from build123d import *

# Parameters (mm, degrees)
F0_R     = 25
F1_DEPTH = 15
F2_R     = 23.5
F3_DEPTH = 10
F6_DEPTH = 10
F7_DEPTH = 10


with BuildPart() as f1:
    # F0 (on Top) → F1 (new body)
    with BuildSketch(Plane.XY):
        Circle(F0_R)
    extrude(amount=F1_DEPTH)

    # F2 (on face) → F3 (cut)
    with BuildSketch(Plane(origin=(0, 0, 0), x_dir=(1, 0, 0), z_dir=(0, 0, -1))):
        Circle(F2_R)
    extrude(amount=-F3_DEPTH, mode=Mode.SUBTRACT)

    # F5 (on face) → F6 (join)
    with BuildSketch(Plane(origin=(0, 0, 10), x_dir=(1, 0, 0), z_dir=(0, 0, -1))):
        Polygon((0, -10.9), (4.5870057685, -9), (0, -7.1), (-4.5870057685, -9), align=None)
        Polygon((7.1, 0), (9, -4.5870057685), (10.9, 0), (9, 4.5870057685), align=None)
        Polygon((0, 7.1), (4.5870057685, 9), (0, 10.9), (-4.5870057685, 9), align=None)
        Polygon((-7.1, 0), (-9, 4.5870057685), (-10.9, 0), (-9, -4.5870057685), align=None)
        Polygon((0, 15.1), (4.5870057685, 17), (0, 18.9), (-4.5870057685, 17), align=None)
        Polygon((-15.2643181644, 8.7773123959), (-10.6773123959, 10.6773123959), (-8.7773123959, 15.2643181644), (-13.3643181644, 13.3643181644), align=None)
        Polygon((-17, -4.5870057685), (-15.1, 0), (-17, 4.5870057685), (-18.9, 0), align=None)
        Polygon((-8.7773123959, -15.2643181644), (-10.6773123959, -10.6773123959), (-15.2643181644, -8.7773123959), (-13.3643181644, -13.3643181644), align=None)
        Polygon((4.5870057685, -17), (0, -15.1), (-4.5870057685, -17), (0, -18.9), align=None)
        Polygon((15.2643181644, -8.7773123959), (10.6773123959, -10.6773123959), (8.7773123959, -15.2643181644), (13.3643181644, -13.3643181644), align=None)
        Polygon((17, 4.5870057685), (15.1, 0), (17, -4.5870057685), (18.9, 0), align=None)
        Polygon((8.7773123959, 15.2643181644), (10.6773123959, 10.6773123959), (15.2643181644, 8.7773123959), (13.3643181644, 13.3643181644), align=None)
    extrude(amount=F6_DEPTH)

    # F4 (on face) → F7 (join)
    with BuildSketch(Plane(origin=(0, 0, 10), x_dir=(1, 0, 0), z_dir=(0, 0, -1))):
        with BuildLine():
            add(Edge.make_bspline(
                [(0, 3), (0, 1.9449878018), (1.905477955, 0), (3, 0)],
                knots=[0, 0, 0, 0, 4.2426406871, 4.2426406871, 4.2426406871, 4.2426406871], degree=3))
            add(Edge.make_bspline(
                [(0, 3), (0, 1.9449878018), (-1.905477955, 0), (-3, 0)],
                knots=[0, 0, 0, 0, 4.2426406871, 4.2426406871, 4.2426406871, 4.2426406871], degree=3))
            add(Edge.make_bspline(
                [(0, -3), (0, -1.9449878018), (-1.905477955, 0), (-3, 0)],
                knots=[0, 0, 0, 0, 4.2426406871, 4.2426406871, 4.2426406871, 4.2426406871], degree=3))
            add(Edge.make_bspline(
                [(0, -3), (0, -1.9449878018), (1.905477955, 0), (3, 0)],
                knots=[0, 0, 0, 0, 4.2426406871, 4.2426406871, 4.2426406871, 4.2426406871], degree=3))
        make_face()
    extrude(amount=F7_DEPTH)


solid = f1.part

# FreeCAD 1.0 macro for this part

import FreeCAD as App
import Part
import Sketcher
from FreeCAD import Vector
Q = App.Units.Quantity

doc = App.newDocument("Part")
body = doc.addObject("PartDesign::Body", "Body")

# Sketch on XY plane
sketch1 = body.newObject("Sketcher::SketchObject", "Sketch")
sketch1.AttachmentSupport = (doc.getObject("XY_Plane"), [""])
sketch1.MapMode = "FlatFace"
sketch1.addGeometry(Part.Circle(Vector(0, 0, 0), Vector(0, 0, 1), 25), False)
sketch1.addConstraint(Sketcher.Constraint("Coincident", 0, 3, -1, 1))
sketch1.addConstraint(Sketcher.Constraint("Diameter", 0, 50.0))
pad1 = body.newObject("PartDesign::Pad", "Pad")
pad1.Profile = sketch1
pad1.Length = 15

# Sketch on XY plane
sketch2 = body.newObject("Sketcher::SketchObject", "Sketch001")
sketch2.AttachmentSupport = (doc.getObject("XY_Plane"), [""])
sketch2.MapMode = "FlatFace"
sketch2.addGeometry(Part.Circle(Vector(0, 0, 0), Vector(0, 0, 1), 23.5), False)
sketch2.addConstraint(Sketcher.Constraint("Coincident", 0, 3, -1, 1))
sketch2.addConstraint(Sketcher.Constraint("Diameter", 0, 47.0))
pocket1 = body.newObject("PartDesign::Pocket", "Pocket")
pocket1.Profile = sketch2
pocket1.Length = 10
pocket1.Reversed = True

# Sketch on XY plane
sketch3 = body.newObject("Sketcher::SketchObject", "Sketch002")
sketch3.AttachmentSupport = (doc.getObject("XY_Plane"), [""])
sketch3.MapMode = "FlatFace"
sketch3.AttachmentOffset = App.Placement(Vector(0, 0, 10), App.Rotation())
sketch3.addGeometry(Part.LineSegment(Vector(0, 10.9, 0), Vector(4.587006, 9, 0)), False)
sketch3.addGeometry(Part.LineSegment(Vector(4.587006, 9, 0), Vector(0, 7.1, 0)), False)
sketch3.addGeometry(Part.LineSegment(Vector(0, 7.1, 0), Vector(-4.587006, 9, 0)), False)
sketch3.addGeometry(Part.LineSegment(Vector(-4.587006, 9, 0), Vector(0, 10.9, 0)), False)
sketch3.addGeometry(Part.LineSegment(Vector(7.1, 0, 0), Vector(9, 4.587006, 0)), False)
sketch3.addGeometry(Part.LineSegment(Vector(9, 4.587006, 0), Vector(10.9, 0, 0)), False)
sketch3.addGeometry(Part.LineSegment(Vector(10.9, 0, 0), Vector(9, -4.587006, 0)), False)
sketch3.addGeometry(Part.LineSegment(Vector(9, -4.587006, 0), Vector(7.1, 0, 0)), False)
sketch3.addGeometry(Part.LineSegment(Vector(0, -7.1, 0), Vector(4.587006, -9, 0)), False)
sketch3.addGeometry(Part.LineSegment(Vector(4.587006, -9, 0), Vector(0, -10.9, 0)), False)
sketch3.addGeometry(Part.LineSegment(Vector(0, -10.9, 0), Vector(-4.587006, -9, 0)), False)
sketch3.addGeometry(Part.LineSegment(Vector(-4.587006, -9, 0), Vector(0, -7.1, 0)), False)
sketch3.addGeometry(Part.LineSegment(Vector(-7.1, 0, 0), Vector(-9, -4.587006, 0)), False)
sketch3.addGeometry(Part.LineSegment(Vector(-9, -4.587006, 0), Vector(-10.9, 0, 0)), False)
sketch3.addGeometry(Part.LineSegment(Vector(-10.9, 0, 0), Vector(-9, 4.587006, 0)), False)
sketch3.addGeometry(Part.LineSegment(Vector(-9, 4.587006, 0), Vector(-7.1, 0, 0)), False)
sketch3.addGeometry(Part.LineSegment(Vector(0, -15.1, 0), Vector(4.587006, -17, 0)), False)
sketch3.addGeometry(Part.LineSegment(Vector(4.587006, -17, 0), Vector(0, -18.9, 0)), False)
sketch3.addGeometry(Part.LineSegment(Vector(0, -18.9, 0), Vector(-4.587006, -17, 0)), False)
sketch3.addGeometry(Part.LineSegment(Vector(-4.587006, -17, 0), Vector(0, -15.1, 0)), False)
sketch3.addGeometry(Part.LineSegment(Vector(-15.264318, -8.777312, 0), Vector(-10.677312, -10.677312, 0)), False)
sketch3.addGeometry(Part.LineSegment(Vector(-10.677312, -10.677312, 0), Vector(-8.777312, -15.264318, 0)), False)
sketch3.addGeometry(Part.LineSegment(Vector(-8.777312, -15.264318, 0), Vector(-13.364318, -13.364318, 0)), False)
sketch3.addGeometry(Part.LineSegment(Vector(-13.364318, -13.364318, 0), Vector(-15.264318, -8.777312, 0)), False)
sketch3.addGeometry(Part.LineSegment(Vector(-17, 4.587006, 0), Vector(-15.1, 0, 0)), False)
sketch3.addGeometry(Part.LineSegment(Vector(-15.1, 0, 0), Vector(-17, -4.587006, 0)), False)
sketch3.addGeometry(Part.LineSegment(Vector(-17, -4.587006, 0), Vector(-18.9, 0, 0)), False)
sketch3.addGeometry(Part.LineSegment(Vector(-18.9, 0, 0), Vector(-17, 4.587006, 0)), False)
sketch3.addGeometry(Part.LineSegment(Vector(-8.777312, 15.264318, 0), Vector(-10.677312, 10.677312, 0)), False)
sketch3.addGeometry(Part.LineSegment(Vector(-10.677312, 10.677312, 0), Vector(-15.264318, 8.777312, 0)), False)
sketch3.addGeometry(Part.LineSegment(Vector(-15.264318, 8.777312, 0), Vector(-13.364318, 13.364318, 0)), False)
sketch3.addGeometry(Part.LineSegment(Vector(-13.364318, 13.364318, 0), Vector(-8.777312, 15.264318, 0)), False)
sketch3.addGeometry(Part.LineSegment(Vector(4.587006, 17, 0), Vector(0, 15.1, 0)), False)
sketch3.addGeometry(Part.LineSegment(Vector(0, 15.1, 0), Vector(-4.587006, 17, 0)), False)
sketch3.addGeometry(Part.LineSegment(Vector(-4.587006, 17, 0), Vector(0, 18.9, 0)), False)
sketch3.addGeometry(Part.LineSegment(Vector(0, 18.9, 0), Vector(4.587006, 17, 0)), False)
sketch3.addGeometry(Part.LineSegment(Vector(15.264318, 8.777312, 0), Vector(10.677312, 10.677312, 0)), False)
sketch3.addGeometry(Part.LineSegment(Vector(10.677312, 10.677312, 0), Vector(8.777312, 15.264318, 0)), False)
sketch3.addGeometry(Part.LineSegment(Vector(8.777312, 15.264318, 0), Vector(13.364318, 13.364318, 0)), False)
sketch3.addGeometry(Part.LineSegment(Vector(13.364318, 13.364318, 0), Vector(15.264318, 8.777312, 0)), False)
sketch3.addGeometry(Part.LineSegment(Vector(17, -4.587006, 0), Vector(15.1, 0, 0)), False)
sketch3.addGeometry(Part.LineSegment(Vector(15.1, 0, 0), Vector(17, 4.587006, 0)), False)
sketch3.addGeometry(Part.LineSegment(Vector(17, 4.587006, 0), Vector(18.9, 0, 0)), False)
sketch3.addGeometry(Part.LineSegment(Vector(18.9, 0, 0), Vector(17, -4.587006, 0)), False)
sketch3.addGeometry(Part.LineSegment(Vector(8.777312, -15.264318, 0), Vector(10.677312, -10.677312, 0)), False)
sketch3.addGeometry(Part.LineSegment(Vector(10.677312, -10.677312, 0), Vector(15.264318, -8.777312, 0)), False)
sketch3.addGeometry(Part.LineSegment(Vector(15.264318, -8.777312, 0), Vector(13.364318, -13.364318, 0)), False)
sketch3.addGeometry(Part.LineSegment(Vector(13.364318, -13.364318, 0), Vector(8.777312, -15.264318, 0)), False)
sketch3.addConstraint(Sketcher.Constraint("Coincident", 0, 2, 1, 1))
sketch3.addConstraint(Sketcher.Constraint("Coincident", 1, 2, 2, 1))
sketch3.addConstraint(Sketcher.Constraint("Coincident", 2, 2, 3, 1))
sketch3.addConstraint(Sketcher.Constraint("Coincident", 3, 2, 0, 1))
sketch3.addConstraint(Sketcher.Constraint("Coincident", 4, 2, 5, 1))
sketch3.addConstraint(Sketcher.Constraint("Coincident", 5, 2, 6, 1))
sketch3.addConstraint(Sketcher.Constraint("Coincident", 6, 2, 7, 1))
sketch3.addConstraint(Sketcher.Constraint("Coincident", 7, 2, 4, 1))
sketch3.addConstraint(Sketcher.Constraint("Coincident", 8, 2, 9, 1))
sketch3.addConstraint(Sketcher.Constraint("Coincident", 9, 2, 10, 1))
sketch3.addConstraint(Sketcher.Constraint("Coincident", 10, 2, 11, 1))
sketch3.addConstraint(Sketcher.Constraint("Coincident", 11, 2, 8, 1))
sketch3.addConstraint(Sketcher.Constraint("Coincident", 12, 2, 13, 1))
sketch3.addConstraint(Sketcher.Constraint("Coincident", 13, 2, 14, 1))
sketch3.addConstraint(Sketcher.Constraint("Coincident", 14, 2, 15, 1))
sketch3.addConstraint(Sketcher.Constraint("Coincident", 15, 2, 12, 1))
sketch3.addConstraint(Sketcher.Constraint("Coincident", 16, 2, 17, 1))
sketch3.addConstraint(Sketcher.Constraint("Coincident", 17, 2, 18, 1))
sketch3.addConstraint(Sketcher.Constraint("Coincident", 18, 2, 19, 1))
sketch3.addConstraint(Sketcher.Constraint("Coincident", 19, 2, 16, 1))
sketch3.addConstraint(Sketcher.Constraint("Coincident", 20, 2, 21, 1))
sketch3.addConstraint(Sketcher.Constraint("Coincident", 21, 2, 22, 1))
sketch3.addConstraint(Sketcher.Constraint("Coincident", 22, 2, 23, 1))
sketch3.addConstraint(Sketcher.Constraint("Coincident", 23, 2, 20, 1))
sketch3.addConstraint(Sketcher.Constraint("Coincident", 24, 2, 25, 1))
sketch3.addConstraint(Sketcher.Constraint("Coincident", 25, 2, 26, 1))
sketch3.addConstraint(Sketcher.Constraint("Coincident", 26, 2, 27, 1))
sketch3.addConstraint(Sketcher.Constraint("Coincident", 27, 2, 24, 1))
sketch3.addConstraint(Sketcher.Constraint("Coincident", 28, 2, 29, 1))
sketch3.addConstraint(Sketcher.Constraint("Coincident", 29, 2, 30, 1))
sketch3.addConstraint(Sketcher.Constraint("Coincident", 30, 2, 31, 1))
sketch3.addConstraint(Sketcher.Constraint("Coincident", 31, 2, 28, 1))
sketch3.addConstraint(Sketcher.Constraint("Coincident", 32, 2, 33, 1))
sketch3.addConstraint(Sketcher.Constraint("Coincident", 33, 2, 34, 1))
sketch3.addConstraint(Sketcher.Constraint("Coincident", 34, 2, 35, 1))
sketch3.addConstraint(Sketcher.Constraint("Coincident", 35, 2, 32, 1))
sketch3.addConstraint(Sketcher.Constraint("Coincident", 36, 2, 37, 1))
sketch3.addConstraint(Sketcher.Constraint("Coincident", 37, 2, 38, 1))
sketch3.addConstraint(Sketcher.Constraint("Coincident", 38, 2, 39, 1))
sketch3.addConstraint(Sketcher.Constraint("Coincident", 39, 2, 36, 1))
sketch3.addConstraint(Sketcher.Constraint("Coincident", 40, 2, 41, 1))
sketch3.addConstraint(Sketcher.Constraint("Coincident", 41, 2, 42, 1))
sketch3.addConstraint(Sketcher.Constraint("Coincident", 42, 2, 43, 1))
sketch3.addConstraint(Sketcher.Constraint("Coincident", 43, 2, 40, 1))
sketch3.addConstraint(Sketcher.Constraint("Coincident", 44, 2, 45, 1))
sketch3.addConstraint(Sketcher.Constraint("Coincident", 45, 2, 46, 1))
sketch3.addConstraint(Sketcher.Constraint("Coincident", 46, 2, 47, 1))
sketch3.addConstraint(Sketcher.Constraint("Coincident", 47, 2, 44, 1))
sketch3.addConstraint(Sketcher.Constraint("Symmetric", 2, 2, 8, 2, -1, 1))
sketch3.addConstraint(Sketcher.Constraint("Symmetric", 3, 2, 9, 2, -1, 1))
sketch3.addConstraint(Sketcher.Constraint("Symmetric", 0, 2, 10, 2, -1, 1))
sketch3.addConstraint(Sketcher.Constraint("Symmetric", 1, 2, 11, 2, -1, 1))
sketch3.addConstraint(Sketcher.Constraint("Symmetric", 4, 2, 12, 2, -1, 1))
sketch3.addConstraint(Sketcher.Constraint("Symmetric", 5, 2, 13, 2, -1, 1))
sketch3.addConstraint(Sketcher.Constraint("Symmetric", 6, 2, 14, 2, -1, 1))
sketch3.addConstraint(Sketcher.Constraint("Symmetric", 7, 2, 15, 2, -1, 1))
sketch3.addConstraint(Sketcher.Constraint("Symmetric", 19, 2, 32, 2, -1, 1))
sketch3.addConstraint(Sketcher.Constraint("Symmetric", 16, 2, 33, 2, -1, 1))
sketch3.addConstraint(Sketcher.Constraint("Symmetric", 17, 2, 34, 2, -1, 1))
sketch3.addConstraint(Sketcher.Constraint("Symmetric", 18, 2, 35, 2, -1, 1))
sketch3.addConstraint(Sketcher.Constraint("Symmetric", 20, 2, 36, 2, -1, 1))
sketch3.addConstraint(Sketcher.Constraint("Symmetric", 21, 2, 37, 2, -1, 1))
sketch3.addConstraint(Sketcher.Constraint("Symmetric", 22, 2, 38, 2, -1, 1))
sketch3.addConstraint(Sketcher.Constraint("Symmetric", 23, 2, 39, 2, -1, 1))
sketch3.addConstraint(Sketcher.Constraint("Symmetric", 24, 2, 40, 2, -1, 1))
sketch3.addConstraint(Sketcher.Constraint("Symmetric", 25, 2, 41, 2, -1, 1))
sketch3.addConstraint(Sketcher.Constraint("Symmetric", 26, 2, 42, 2, -1, 1))
sketch3.addConstraint(Sketcher.Constraint("Symmetric", 27, 2, 43, 2, -1, 1))
sketch3.addConstraint(Sketcher.Constraint("Symmetric", 28, 2, 44, 2, -1, 1))
sketch3.addConstraint(Sketcher.Constraint("Symmetric", 29, 2, 45, 2, -1, 1))
sketch3.addConstraint(Sketcher.Constraint("Symmetric", 30, 2, 46, 2, -1, 1))
sketch3.addConstraint(Sketcher.Constraint("Symmetric", 31, 2, 47, 2, -1, 1))
sketch3.addConstraint(Sketcher.Constraint("Symmetric", 0, 2, 2, 2, -2))
sketch3.addConstraint(Sketcher.Constraint("Symmetric", 6, 2, 12, 2, -2))
sketch3.addConstraint(Sketcher.Constraint("Symmetric", 16, 2, 18, 2, -2))
sketch3.addConstraint(Sketcher.Constraint("Symmetric", 28, 2, 36, 2, -2))
sketch3.addConstraint(Sketcher.Constraint("Symmetric", 31, 2, 37, 2, -2))
sketch3.addConstraint(Sketcher.Constraint("Symmetric", 30, 2, 38, 2, -2))
sketch3.addConstraint(Sketcher.Constraint("Symmetric", 29, 2, 39, 2, -2))
sketch3.addConstraint(Sketcher.Constraint("Symmetric", 27, 2, 41, 2, -2))
sketch3.addConstraint(Sketcher.Constraint("PointOnObject", 1, 2, -2))
sketch3.addConstraint(Sketcher.Constraint("PointOnObject", 3, 2, -2))
sketch3.addConstraint(Sketcher.Constraint("PointOnObject", 5, 2, -1))
sketch3.addConstraint(Sketcher.Constraint("PointOnObject", 7, 2, -1))
sketch3.addConstraint(Sketcher.Constraint("PointOnObject", 17, 2, -2))
sketch3.addConstraint(Sketcher.Constraint("PointOnObject", 19, 2, -2))
sketch3.addConstraint(Sketcher.Constraint("PointOnObject", 24, 2, -1))
sketch3.addConstraint(Sketcher.Constraint("PointOnObject", 26, 2, -1))
sketch3.addConstraint(Sketcher.Constraint("Parallel", 0, 2))
sketch3.addConstraint(Sketcher.Constraint("Perpendicular", 2, 4))
sketch3.addConstraint(Sketcher.Constraint("Perpendicular", 3, 5))
sketch3.addConstraint(Sketcher.Constraint("Perpendicular", 14, 16))
sketch3.addConstraint(Sketcher.Constraint("Perpendicular", 15, 17))
sketch3.addConstraint(Sketcher.Constraint("Parallel", 18, 20))
sketch3.addConstraint(Sketcher.Constraint("Perpendicular", 19, 21))
sketch3.addConstraint(Sketcher.Constraint("Parallel", 20, 22))
sketch3.addConstraint(Sketcher.Constraint("Parallel", 21, 23))
sketch3.addConstraint(Sketcher.Constraint("Parallel", 23, 24))
sketch3.addConstraint(Sketcher.Constraint("Parallel", 24, 26))
sketch3.addConstraint(Sketcher.Constraint("Horizontal", 12, 2, 25, 2))
sketch3.addConstraint(Sketcher.Constraint("Vertical", 8, 2, 16, 2))
sketch3.addConstraint(Sketcher.Constraint("Equal", 3, 4))
sketch3.addConstraint(Sketcher.Constraint("Equal", 19, 20))
sketch3.addConstraint(Sketcher.Constraint("Equal", 20, 21))
sketch3.addConstraint(Sketcher.Constraint("DistanceY", -1, 1, 0, 2, 9.0))
sketch3.addConstraint(Sketcher.Constraint("DistanceX", -1, 1, 4, 2, 9.0))
sketch3.addConstraint(Sketcher.Constraint("DistanceY", 16, 2, -1, 1, 17.0))
sketch3.addConstraint(Sketcher.Constraint("DistanceX", 25, 2, -1, 1, 17.0))
sketch3.addConstraint(Sketcher.Constraint("Angle", 0, Q("-22.5 deg")))
sketch3.addConstraint(Sketcher.Constraint("DistanceY", -1, 1, 1, 2, 7.1))
sketch3.addConstraint(Sketcher.Constraint("DistanceY", 21, 2, -1, 1, 15.264318))
sketch3.addConstraint(Sketcher.Constraint("DistanceX", 22, 2, -1, 1, 13.364318))
pad2 = body.newObject("PartDesign::Pad", "Pad001")
pad2.Profile = sketch3
pad2.Length = 10
pad2.Reversed = True

# Sketch on XY plane
sketch4 = body.newObject("Sketcher::SketchObject", "Sketch003")
sketch4.AttachmentSupport = (doc.getObject("XY_Plane"), [""])
sketch4.MapMode = "FlatFace"
sketch4.AttachmentOffset = App.Placement(Vector(0, 0, 10), App.Rotation())
sketch4.addGeometry(Part.BSplineCurve([Vector(0, -3, 0), Vector(0, -1.944988, 0), Vector(1.905478, 0, 0), Vector(3, 0, 0)], [4, 4], [0, 4.242640687], False, 3, [1, 1, 1, 1], False), False)
sketch4.addGeometry(Part.BSplineCurve([Vector(0, -3, 0), Vector(0, -1.944988, 0), Vector(-1.905478, 0, 0), Vector(-3, 0, 0)], [4, 4], [0, 4.242640687], False, 3, [1, 1, 1, 1], False), False)
sketch4.addGeometry(Part.BSplineCurve([Vector(0, 3, 0), Vector(0, 1.944988, 0), Vector(-1.905478, 0, 0), Vector(-3, 0, 0)], [4, 4], [0, 4.242640687], False, 3, [1, 1, 1, 1], False), False)
sketch4.addGeometry(Part.BSplineCurve([Vector(0, 3, 0), Vector(0, 1.944988, 0), Vector(1.905478, 0, 0), Vector(3, 0, 0)], [4, 4], [0, 4.242640687], False, 3, [1, 1, 1, 1], False), False)
sketch4.addConstraint(Sketcher.Constraint("Block", 0))
sketch4.addConstraint(Sketcher.Constraint("Block", 1))
sketch4.addConstraint(Sketcher.Constraint("Block", 2))
sketch4.addConstraint(Sketcher.Constraint("Block", 3))
pad3 = body.newObject("PartDesign::Pad", "Pad002")
pad3.Profile = sketch4
pad3.Length = 10
pad3.Reversed = True

doc.recompute()
